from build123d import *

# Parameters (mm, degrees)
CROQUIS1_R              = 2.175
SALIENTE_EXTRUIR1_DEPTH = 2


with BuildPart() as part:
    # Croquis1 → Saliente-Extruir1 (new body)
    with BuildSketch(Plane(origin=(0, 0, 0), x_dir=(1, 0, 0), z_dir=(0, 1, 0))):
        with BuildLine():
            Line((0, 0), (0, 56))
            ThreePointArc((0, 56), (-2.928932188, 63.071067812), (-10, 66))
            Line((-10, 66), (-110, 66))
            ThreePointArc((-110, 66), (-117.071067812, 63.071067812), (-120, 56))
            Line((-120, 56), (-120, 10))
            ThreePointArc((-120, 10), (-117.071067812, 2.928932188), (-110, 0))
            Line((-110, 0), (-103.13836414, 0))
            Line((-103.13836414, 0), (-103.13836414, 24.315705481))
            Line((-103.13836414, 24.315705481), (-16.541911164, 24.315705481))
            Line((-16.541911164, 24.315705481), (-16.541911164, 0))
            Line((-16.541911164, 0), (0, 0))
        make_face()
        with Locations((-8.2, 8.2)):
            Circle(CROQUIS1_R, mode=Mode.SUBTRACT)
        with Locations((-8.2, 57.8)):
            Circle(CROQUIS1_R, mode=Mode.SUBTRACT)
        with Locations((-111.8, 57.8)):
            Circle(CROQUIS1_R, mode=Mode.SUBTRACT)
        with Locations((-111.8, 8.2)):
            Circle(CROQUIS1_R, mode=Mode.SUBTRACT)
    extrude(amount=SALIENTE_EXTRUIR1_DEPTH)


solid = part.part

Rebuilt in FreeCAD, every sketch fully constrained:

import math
import FreeCAD as App
import Part
import Sketcher
Q = App.Units.Quantity

doc = App.newDocument("Part")
body = doc.addObject("PartDesign::Body", "Body")

sketch1 = body.newObject("Sketcher::SketchObject", "Sketch")
sketch1.AttachmentSupport = (doc.getObject("XZ_Plane"), [""])
sketch1.MapMode = "FlatFace"
sketch1.addGeometry(Part.LineSegment(App.Vector(0, 0, 0), App.Vector(0, -56, 0)), False)
sketch1.addGeometry(Part.ArcOfCircle(Part.Circle(App.Vector(-10, -56, 0), App.Vector(0, 0, 1), 10), math.radians(-90), math.radians(0)), False)
sketch1.addGeometry(Part.LineSegment(App.Vector(-10, -66, 0), App.Vector(-110, -66, 0)), False)
sketch1.addGeometry(Part.ArcOfCircle(Part.Circle(App.Vector(-110, -56, 0), App.Vector(0, 0, 1), 10), math.radians(180), math.radians(270)), False)
sketch1.addGeometry(Part.LineSegment(App.Vector(-120, -56, 0), App.Vector(-120, -10, 0)), False)
sketch1.addGeometry(Part.ArcOfCircle(Part.Circle(App.Vector(-110, -10, 0), App.Vector(0, 0, 1), 10), math.radians(90), math.radians(180)), False)
sketch1.addGeometry(Part.LineSegment(App.Vector(-110, 0, 0), App.Vector(-103.1, 0, 0)), False)
sketch1.addGeometry(Part.LineSegment(App.Vector(-103.1, 0, 0), App.Vector(-103.1, -24.3, 0)), False)
sketch1.addGeometry(Part.LineSegment(App.Vector(-103.1, -24.3, 0), App.Vector(-16.5, -24.3, 0)), False)
sketch1.addGeometry(Part.LineSegment(App.Vector(-16.5, -24.3, 0), App.Vector(-16.5, 0, 0)), False)
sketch1.addGeometry(Part.LineSegment(App.Vector(-16.5, 0, 0), App.Vector(0, 0, 0)), False)
sketch1.addGeometry(Part.Circle(App.Vector(-111.8, -8.2, 0), App.Vector(0, 0, 1), 2.2), False)
sketch1.addGeometry(Part.Circle(App.Vector(-8.2, -8.2, 0), App.Vector(0, 0, 1), 2.2), False)
sketch1.addGeometry(Part.Circle(App.Vector(-111.8, -57.8, 0), App.Vector(0, 0, 1), 2.2), False)
sketch1.addGeometry(Part.Circle(App.Vector(-8.2, -57.8, 0), App.Vector(0, 0, 1), 2.2), False)
sketch1.addConstraint(Sketcher.Constraint("Tangent", 0, 2, 1, 2))
sketch1.addConstraint(Sketcher.Constraint("Tangent", 1, 1, 2, 1))
sketch1.addConstraint(Sketcher.Constraint("Tangent", 2, 2, 3, 2))
sketch1.addConstraint(Sketcher.Constraint("Tangent", 3, 1, 4, 1))
sketch1.addConstraint(Sketcher.Constraint("Tangent", 4, 2, 5, 2))
sketch1.addConstraint(Sketcher.Constraint("Tangent", 5, 1, 6, 1))
sketch1.addConstraint(Sketcher.Constraint("Coincident", 6, 2, 7, 1))
sketch1.addConstraint(Sketcher.Constraint("Coincident", 7, 2, 8, 1))
sketch1.addConstraint(Sketcher.Constraint("Coincident", 8, 2, 9, 1))
sketch1.addConstraint(Sketcher.Constraint("Coincident", 9, 2, 10, 1))
sketch1.addConstraint(Sketcher.Constraint("Coincident", 10, 2, 0, 1))
sketch1.addConstraint(Sketcher.Constraint("Vertical", 0))
sketch1.addConstraint(Sketcher.Constraint("Horizontal", 2))
sketch1.addConstraint(Sketcher.Constraint("Vertical", 4))
sketch1.addConstraint(Sketcher.Constraint("Horizontal", 6))
sketch1.addConstraint(Sketcher.Constraint("Vertical", 7))
sketch1.addConstraint(Sketcher.Constraint("Horizontal", 8))
sketch1.addConstraint(Sketcher.Constraint("Vertical", 9))
sketch1.addConstraint(Sketcher.Constraint("Horizontal", 10))
sketch1.addConstraint(Sketcher.Constraint("Coincident", 10, 2, -1, 1))
sketch1.addConstraint(Sketcher.Constraint("Equal", 1, 3))
sketch1.addConstraint(Sketcher.Constraint("Equal", 3, 5))
sketch1.addConstraint(Sketcher.Constraint("Equal", 11, 12))
sketch1.addConstraint(Sketcher.Constraint("Equal", 12, 13))
sketch1.addConstraint(Sketcher.Constraint("Equal", 13, 14))
sketch1.addConstraint(Sketcher.Constraint("PointOnObject", 5, 1, -1))
sketch1.addConstraint(Sketcher.Constraint("Horizontal", 11, 3, 12, 3))
sketch1.addConstraint(Sketcher.Constraint("Horizontal", 13, 3, 14, 3))
sketch1.addConstraint(Sketcher.Constraint("Vertical", 11, 3, 13, 3))
sketch1.addConstraint(Sketcher.Constraint("Vertical", 12, 3, 14, 3))
sketch1.addConstraint(Sketcher.Constraint("Radius", 1, Q("10 mm")))
sketch1.addConstraint(Sketcher.Constraint("Diameter", 11, Q("4.35 mm")))
sketch1.addConstraint(Sketcher.Constraint("DistanceX", 2, 2, 2, 1, Q("100 mm")))
sketch1.addConstraint(Sketcher.Constraint("DistanceY", 0, 2, 0, 1, Q("56 mm")))
sketch1.addConstraint(Sketcher.Constraint("DistanceX", 11, 3, -1, 1, Q("111.8 mm")))
sketch1.addConstraint(Sketcher.Constraint("DistanceY", 11, 3, -1, 1, Q("8.2 mm")))
sketch1.addConstraint(Sketcher.Constraint("DistanceX", 12, 3, -1, 1, Q("8.2 mm")))
sketch1.addConstraint(Sketcher.Constraint("DistanceY", 13, 3, -1, 1, Q("57.8 mm")))
sketch1.addConstraint(Sketcher.Constraint("DistanceX", 10, 1, 10, 2, Q("16.541911 mm")))
sketch1.addConstraint(Sketcher.Constraint("DistanceX", 6, 1, 6, 2, Q("6.861636 mm")))
sketch1.addConstraint(Sketcher.Constraint("DistanceY", 7, 2, 7, 1, Q("24.315705 mm")))
pad1 = body.newObject("PartDesign::Pad", "Pad")
pad1.Profile = sketch1
pad1.Length = 2
pad1.Reversed = True

doc.recompute()
